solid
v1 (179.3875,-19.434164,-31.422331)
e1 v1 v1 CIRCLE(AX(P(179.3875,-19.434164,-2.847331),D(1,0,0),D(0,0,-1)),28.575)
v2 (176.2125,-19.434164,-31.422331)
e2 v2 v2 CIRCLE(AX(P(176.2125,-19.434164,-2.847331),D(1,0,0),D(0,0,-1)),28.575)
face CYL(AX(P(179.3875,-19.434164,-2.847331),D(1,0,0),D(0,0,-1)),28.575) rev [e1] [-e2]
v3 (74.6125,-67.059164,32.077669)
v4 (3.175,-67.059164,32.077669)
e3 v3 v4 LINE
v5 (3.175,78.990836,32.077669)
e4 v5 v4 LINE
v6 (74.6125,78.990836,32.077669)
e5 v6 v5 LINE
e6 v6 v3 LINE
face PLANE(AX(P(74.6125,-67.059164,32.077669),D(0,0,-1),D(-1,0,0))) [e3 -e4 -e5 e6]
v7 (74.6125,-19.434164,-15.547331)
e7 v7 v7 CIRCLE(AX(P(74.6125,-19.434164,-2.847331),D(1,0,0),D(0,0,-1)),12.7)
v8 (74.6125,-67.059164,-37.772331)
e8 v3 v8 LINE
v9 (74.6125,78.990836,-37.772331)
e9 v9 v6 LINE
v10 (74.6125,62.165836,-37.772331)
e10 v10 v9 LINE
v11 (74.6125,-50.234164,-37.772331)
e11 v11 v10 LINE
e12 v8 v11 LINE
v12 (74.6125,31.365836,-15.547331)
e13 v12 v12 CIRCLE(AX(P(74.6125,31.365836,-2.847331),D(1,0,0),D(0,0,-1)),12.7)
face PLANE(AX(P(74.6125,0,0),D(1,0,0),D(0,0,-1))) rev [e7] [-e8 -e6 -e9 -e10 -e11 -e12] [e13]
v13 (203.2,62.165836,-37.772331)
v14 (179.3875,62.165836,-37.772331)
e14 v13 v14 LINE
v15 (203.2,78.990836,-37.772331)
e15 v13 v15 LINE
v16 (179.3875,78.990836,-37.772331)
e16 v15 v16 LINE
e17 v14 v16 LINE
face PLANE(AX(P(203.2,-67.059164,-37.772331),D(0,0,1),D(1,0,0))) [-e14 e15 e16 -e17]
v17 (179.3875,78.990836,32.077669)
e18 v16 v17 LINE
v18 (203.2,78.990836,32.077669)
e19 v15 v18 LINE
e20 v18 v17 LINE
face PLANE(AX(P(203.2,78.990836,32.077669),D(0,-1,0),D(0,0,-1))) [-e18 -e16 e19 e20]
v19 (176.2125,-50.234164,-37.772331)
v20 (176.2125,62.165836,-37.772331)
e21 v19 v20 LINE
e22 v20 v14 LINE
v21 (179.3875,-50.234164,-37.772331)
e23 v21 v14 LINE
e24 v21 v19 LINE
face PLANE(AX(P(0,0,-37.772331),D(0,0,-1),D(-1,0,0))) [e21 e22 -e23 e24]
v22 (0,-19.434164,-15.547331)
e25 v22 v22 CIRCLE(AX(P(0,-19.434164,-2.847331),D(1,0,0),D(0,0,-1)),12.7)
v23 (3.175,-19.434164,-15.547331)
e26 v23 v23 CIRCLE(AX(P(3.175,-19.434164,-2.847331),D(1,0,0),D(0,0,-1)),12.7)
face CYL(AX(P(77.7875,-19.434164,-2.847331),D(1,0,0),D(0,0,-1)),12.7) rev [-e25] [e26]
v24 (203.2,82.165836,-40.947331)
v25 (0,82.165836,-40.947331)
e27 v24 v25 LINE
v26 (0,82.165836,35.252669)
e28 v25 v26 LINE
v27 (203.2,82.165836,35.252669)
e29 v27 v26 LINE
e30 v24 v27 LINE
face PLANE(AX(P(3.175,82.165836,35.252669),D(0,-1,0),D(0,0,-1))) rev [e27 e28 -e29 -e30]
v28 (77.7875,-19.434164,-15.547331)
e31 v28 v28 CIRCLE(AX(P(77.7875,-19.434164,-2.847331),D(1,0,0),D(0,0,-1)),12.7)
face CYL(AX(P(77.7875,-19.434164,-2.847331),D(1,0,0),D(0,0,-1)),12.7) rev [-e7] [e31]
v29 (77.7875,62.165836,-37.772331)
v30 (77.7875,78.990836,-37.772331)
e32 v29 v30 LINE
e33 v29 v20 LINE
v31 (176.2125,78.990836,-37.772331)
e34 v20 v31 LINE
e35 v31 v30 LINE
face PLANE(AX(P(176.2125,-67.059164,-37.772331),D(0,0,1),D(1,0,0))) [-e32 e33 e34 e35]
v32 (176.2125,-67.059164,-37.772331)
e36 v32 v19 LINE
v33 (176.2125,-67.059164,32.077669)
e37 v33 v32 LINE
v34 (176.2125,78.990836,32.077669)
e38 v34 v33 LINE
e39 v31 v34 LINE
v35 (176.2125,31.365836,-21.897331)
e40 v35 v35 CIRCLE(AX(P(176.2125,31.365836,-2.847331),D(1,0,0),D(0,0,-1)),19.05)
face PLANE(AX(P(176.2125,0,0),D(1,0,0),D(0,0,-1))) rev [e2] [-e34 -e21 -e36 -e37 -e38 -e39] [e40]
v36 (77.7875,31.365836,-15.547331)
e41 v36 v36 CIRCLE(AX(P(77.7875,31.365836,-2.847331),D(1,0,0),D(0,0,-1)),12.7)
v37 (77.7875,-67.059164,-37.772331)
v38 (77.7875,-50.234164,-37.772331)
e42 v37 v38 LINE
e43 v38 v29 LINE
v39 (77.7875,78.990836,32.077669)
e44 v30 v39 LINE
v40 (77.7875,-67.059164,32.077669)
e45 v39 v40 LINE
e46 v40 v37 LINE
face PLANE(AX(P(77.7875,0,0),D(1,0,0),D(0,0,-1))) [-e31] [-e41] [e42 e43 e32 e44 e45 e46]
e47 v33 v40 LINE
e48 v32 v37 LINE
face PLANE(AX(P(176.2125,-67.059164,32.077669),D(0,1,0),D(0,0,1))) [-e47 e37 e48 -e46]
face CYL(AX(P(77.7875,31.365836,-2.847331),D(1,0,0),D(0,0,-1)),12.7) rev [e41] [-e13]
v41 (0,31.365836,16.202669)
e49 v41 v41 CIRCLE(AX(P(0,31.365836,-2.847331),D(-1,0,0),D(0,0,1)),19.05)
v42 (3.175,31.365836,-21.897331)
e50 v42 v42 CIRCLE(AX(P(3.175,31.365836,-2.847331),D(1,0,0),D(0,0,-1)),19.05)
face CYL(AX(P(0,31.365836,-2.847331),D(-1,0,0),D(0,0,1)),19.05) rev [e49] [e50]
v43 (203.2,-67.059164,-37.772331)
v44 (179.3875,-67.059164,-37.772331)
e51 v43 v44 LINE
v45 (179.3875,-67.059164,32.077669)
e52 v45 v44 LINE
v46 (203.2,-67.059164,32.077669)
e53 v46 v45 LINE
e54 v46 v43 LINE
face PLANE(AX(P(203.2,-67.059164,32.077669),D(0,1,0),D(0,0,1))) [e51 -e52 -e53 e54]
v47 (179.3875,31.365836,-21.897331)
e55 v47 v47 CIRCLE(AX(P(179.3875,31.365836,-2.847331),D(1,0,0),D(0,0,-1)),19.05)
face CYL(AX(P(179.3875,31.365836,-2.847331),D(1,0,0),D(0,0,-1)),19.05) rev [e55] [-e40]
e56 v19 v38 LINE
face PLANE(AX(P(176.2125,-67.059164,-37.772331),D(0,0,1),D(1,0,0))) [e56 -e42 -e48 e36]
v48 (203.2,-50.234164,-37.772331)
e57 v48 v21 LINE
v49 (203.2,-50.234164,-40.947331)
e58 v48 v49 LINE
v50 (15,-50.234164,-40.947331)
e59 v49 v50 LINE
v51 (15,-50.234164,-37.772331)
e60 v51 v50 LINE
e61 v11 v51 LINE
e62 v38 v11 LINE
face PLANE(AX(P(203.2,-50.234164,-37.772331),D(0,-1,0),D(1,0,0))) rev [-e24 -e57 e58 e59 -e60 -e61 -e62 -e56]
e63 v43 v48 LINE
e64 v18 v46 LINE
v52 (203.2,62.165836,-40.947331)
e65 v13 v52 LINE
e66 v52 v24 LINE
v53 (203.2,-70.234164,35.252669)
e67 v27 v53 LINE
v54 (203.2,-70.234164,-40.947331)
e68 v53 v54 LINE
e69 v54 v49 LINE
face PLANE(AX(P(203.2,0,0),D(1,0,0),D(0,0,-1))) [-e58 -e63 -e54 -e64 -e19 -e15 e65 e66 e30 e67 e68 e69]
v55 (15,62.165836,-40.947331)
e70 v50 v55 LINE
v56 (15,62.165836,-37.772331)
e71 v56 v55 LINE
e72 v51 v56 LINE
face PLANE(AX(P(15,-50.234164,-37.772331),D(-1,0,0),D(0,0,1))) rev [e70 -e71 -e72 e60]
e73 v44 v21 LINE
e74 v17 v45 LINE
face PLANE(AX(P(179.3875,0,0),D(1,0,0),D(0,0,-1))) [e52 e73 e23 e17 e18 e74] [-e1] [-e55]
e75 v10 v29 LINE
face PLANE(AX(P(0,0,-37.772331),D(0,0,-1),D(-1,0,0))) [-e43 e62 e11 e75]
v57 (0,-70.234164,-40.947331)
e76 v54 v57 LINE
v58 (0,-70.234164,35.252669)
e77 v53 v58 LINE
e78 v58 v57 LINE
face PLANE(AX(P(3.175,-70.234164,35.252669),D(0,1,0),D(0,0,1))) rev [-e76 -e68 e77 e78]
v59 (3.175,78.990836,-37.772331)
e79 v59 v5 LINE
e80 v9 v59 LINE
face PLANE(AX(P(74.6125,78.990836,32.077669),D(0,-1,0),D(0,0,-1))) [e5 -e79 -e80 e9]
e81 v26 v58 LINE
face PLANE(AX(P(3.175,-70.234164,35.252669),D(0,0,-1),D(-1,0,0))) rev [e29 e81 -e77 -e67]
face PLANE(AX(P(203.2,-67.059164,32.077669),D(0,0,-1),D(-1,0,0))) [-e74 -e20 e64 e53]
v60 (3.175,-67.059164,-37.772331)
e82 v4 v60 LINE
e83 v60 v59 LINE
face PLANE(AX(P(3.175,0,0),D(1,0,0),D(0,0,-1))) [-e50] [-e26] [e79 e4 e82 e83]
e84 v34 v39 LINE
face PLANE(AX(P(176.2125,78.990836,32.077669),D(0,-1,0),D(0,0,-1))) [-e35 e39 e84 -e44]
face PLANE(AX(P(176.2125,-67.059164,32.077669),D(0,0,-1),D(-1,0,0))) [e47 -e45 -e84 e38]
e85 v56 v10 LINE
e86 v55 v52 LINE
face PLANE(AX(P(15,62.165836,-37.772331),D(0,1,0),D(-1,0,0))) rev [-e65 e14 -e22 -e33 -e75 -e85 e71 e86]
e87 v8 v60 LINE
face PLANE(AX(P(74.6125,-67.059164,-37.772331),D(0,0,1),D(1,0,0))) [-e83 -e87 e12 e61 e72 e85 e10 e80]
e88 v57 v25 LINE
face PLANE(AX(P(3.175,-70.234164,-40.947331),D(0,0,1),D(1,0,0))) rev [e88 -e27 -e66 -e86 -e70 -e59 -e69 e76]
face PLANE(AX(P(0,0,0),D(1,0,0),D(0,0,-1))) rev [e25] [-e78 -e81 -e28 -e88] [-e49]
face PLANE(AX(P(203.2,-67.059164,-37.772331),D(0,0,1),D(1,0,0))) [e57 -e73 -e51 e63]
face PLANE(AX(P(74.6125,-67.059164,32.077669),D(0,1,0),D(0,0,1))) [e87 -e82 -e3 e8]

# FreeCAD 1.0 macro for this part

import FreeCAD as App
import Part
import Sketcher
Q = App.Units.Quantity

doc = App.newDocument("Part")
body = doc.addObject("PartDesign::Body", "Body")

# Sketch on YZ plane
sketch1 = body.newObject("Sketcher::SketchObject", "Sketch")
sketch1.AttachmentSupport = (doc.getObject("YZ_Plane"), [""])
sketch1.MapMode = "FlatFace"
sketch1.addGeometry([
    Part.LineSegment(App.Vector(-70.234164, 35.252669, 0), App.Vector(-70.234164, -40.947331, 0)),
    Part.LineSegment(App.Vector(-70.234164, -40.947331, 0), App.Vector(82.165836, -40.947331, 0)),
    Part.LineSegment(App.Vector(82.165836, -40.947331, 0), App.Vector(82.165836, 35.252669, 0)),
    Part.LineSegment(App.Vector(82.165836, 35.252669, 0), App.Vector(-70.234164, 35.252669, 0)),
], False)
sketch1.addConstraint([
    Sketcher.Constraint("Coincident", 0, 2, 1, 1),
    Sketcher.Constraint("Coincident", 1, 2, 2, 1),
    Sketcher.Constraint("Coincident", 2, 2, 3, 1),
    Sketcher.Constraint("Coincident", 3, 2, 0, 1),
    Sketcher.Constraint("Vertical", 0),
    Sketcher.Constraint("Horizontal", 1),
    Sketcher.Constraint("Vertical", 2),
    Sketcher.Constraint("Horizontal", 3),
    Sketcher.Constraint("DistanceX", 1, 1, 1, 2, Q("6 in")),
    Sketcher.Constraint("DistanceY", 0, 2, 0, 1, Q("3 in")),
    Sketcher.Constraint("DistanceY", 0, 2, -1, 1, Q("40.947331 mm")),
    Sketcher.Constraint("DistanceX", 0, 2, -1, 1, Q("70.234164 mm")),
])
pad1 = body.newObject("PartDesign::Pad", "Pad")
pad1.Profile = sketch1
pad1.Length = Q("0.125 in")

# Sketch on YZ plane
sketch2 = body.newObject("Sketcher::SketchObject", "Sketch001")
sketch2.AttachmentSupport = (doc.getObject("YZ_Plane"), [""])
sketch2.MapMode = "FlatFace"
sketch2.AttachmentOffset = App.Placement(App.Vector(0, 0, 0.125 * 25.4), App.Rotation())
sketch2.addGeometry([
    Part.LineSegment(App.Vector(-70.234164, 35.252669, 0), App.Vector(-70.234164, -40.947331, 0)),  # 0
    Part.LineSegment(App.Vector(-70.234164, -40.947331, 0), App.Vector(82.165836, -40.947331, 0)),  # 1
    Part.LineSegment(App.Vector(82.165836, -40.947331, 0), App.Vector(82.165836, 35.252669, 0)),  # 2
    Part.LineSegment(App.Vector(82.165836, 35.252669, 0), App.Vector(-70.234164, 35.252669, 0)),  # 3
    Part.LineSegment(App.Vector(78.990836, -37.772331, 0), App.Vector(-67.059164, -37.772331, 0)),  # 4
    Part.LineSegment(App.Vector(-67.059164, -37.772331, 0), App.Vector(-67.059164, 32.077669, 0)),  # 5
    Part.LineSegment(App.Vector(-67.059164, 32.077669, 0), App.Vector(78.990836, 32.077669, 0)),  # 6
    Part.LineSegment(App.Vector(78.990836, 32.077669, 0), App.Vector(78.990836, -37.772331, 0)),  # 7
], False)
sketch2.addConstraint([
    Sketcher.Constraint("Coincident", 0, 2, 1, 1),
    Sketcher.Constraint("Coincident", 1, 2, 2, 1),
    Sketcher.Constraint("Coincident", 2, 2, 3, 1),
    Sketcher.Constraint("Coincident", 3, 2, 0, 1),
    Sketcher.Constraint("Coincident", 4, 2, 5, 1),
    Sketcher.Constraint("Coincident", 5, 2, 6, 1),
    Sketcher.Constraint("Coincident", 6, 2, 7, 1),
    Sketcher.Constraint("Coincident", 7, 2, 4, 1),
    Sketcher.Constraint("Vertical", 0),
    Sketcher.Constraint("Horizontal", 1),
    Sketcher.Constraint("Vertical", 2),
    Sketcher.Constraint("Horizontal", 3),
    Sketcher.Constraint("Horizontal", 4),
    Sketcher.Constraint("Vertical", 5),
    Sketcher.Constraint("Horizontal", 6),
    Sketcher.Constraint("Vertical", 7),
    Sketcher.Constraint("DistanceX", 1, 1, 1, 2, Q("6 in")),
    Sketcher.Constraint("DistanceY", 0, 2, 0, 1, Q("3 in")),
    Sketcher.Constraint("DistanceX", 4, 2, 4, 1, Q("5.75 in")),
    Sketcher.Constraint("DistanceY", 5, 1, 5, 2, Q("2.75 in")),
    Sketcher.Constraint("DistanceX", 0, 2, 4, 2, Q("0.125 in")),
    Sketcher.Constraint("DistanceY", 0, 2, 4, 2, Q("0.125 in")),
    Sketcher.Constraint("DistanceY", 0, 2, -1, 1, Q("40.947331 mm")),
    Sketcher.Constraint("DistanceX", 0, 2, -1, 1, Q("70.234164 mm")),
])
pad2 = body.newObject("PartDesign::Pad", "Pad001")
pad2.Profile = sketch2
pad2.Length = Q("2.8125 in")

# Sketch on YZ plane
sketch3 = body.newObject("Sketcher::SketchObject", "Sketch002")
sketch3.AttachmentSupport = (doc.getObject("YZ_Plane"), [""])
sketch3.MapMode = "FlatFace"
sketch3.AttachmentOffset = App.Placement(App.Vector(0, 0, 2.9375 * 25.4), App.Rotation())
sketch3.addGeometry([
    Part.LineSegment(App.Vector(-70.234164, 35.252669, 0), App.Vector(-70.234164, -40.947331, 0)),
    Part.LineSegment(App.Vector(-70.234164, -40.947331, 0), App.Vector(82.165836, -40.947331, 0)),
    Part.LineSegment(App.Vector(82.165836, -40.947331, 0), App.Vector(82.165836, 35.252669, 0)),
    Part.LineSegment(App.Vector(82.165836, 35.252669, 0), App.Vector(-70.234164, 35.252669, 0)),
], False)
sketch3.addConstraint([
    Sketcher.Constraint("Coincident", 0, 2, 1, 1),
    Sketcher.Constraint("Coincident", 1, 2, 2, 1),
    Sketcher.Constraint("Coincident", 2, 2, 3, 1),
    Sketcher.Constraint("Coincident", 3, 2, 0, 1),
    Sketcher.Constraint("Vertical", 0),
    Sketcher.Constraint("Horizontal", 1),
    Sketcher.Constraint("Vertical", 2),
    Sketcher.Constraint("Horizontal", 3),
    Sketcher.Constraint("DistanceX", 1, 1, 1, 2, Q("6 in")),
    Sketcher.Constraint("DistanceY", 0, 2, 0, 1, Q("3 in")),
    Sketcher.Constraint("DistanceY", 0, 2, -1, 1, Q("40.947331 mm")),
    Sketcher.Constraint("DistanceX", 0, 2, -1, 1, Q("70.234164 mm")),
])
pad3 = body.newObject("PartDesign::Pad", "Pad002")
pad3.Profile = sketch3
pad3.Length = Q("0.125 in")

# Sketch on YZ plane
sketch4 = body.newObject("Sketcher::SketchObject", "Sketch003")
sketch4.AttachmentSupport = (doc.getObject("YZ_Plane"), [""])
sketch4.MapMode = "FlatFace"
sketch4.AttachmentOffset = App.Placement(App.Vector(0, 0, 3.0625 * 25.4), App.Rotation())
sketch4.addGeometry([
    Part.LineSegment(App.Vector(-70.234164, 35.252669, 0), App.Vector(-70.234164, -40.947331, 0)),  # 0
    Part.LineSegment(App.Vector(-70.234164, -40.947331, 0), App.Vector(82.165836, -40.947331, 0)),  # 1
    Part.LineSegment(App.Vector(82.165836, -40.947331, 0), App.Vector(82.165836, 35.252669, 0)),  # 2
    Part.LineSegment(App.Vector(82.165836, 35.252669, 0), App.Vector(-70.234164, 35.252669, 0)),  # 3
    Part.LineSegment(App.Vector(78.990836, -37.772331, 0), App.Vector(-67.059164, -37.772331, 0)),  # 4
    Part.LineSegment(App.Vector(-67.059164, -37.772331, 0), App.Vector(-67.059164, 32.077669, 0)),  # 5
    Part.LineSegment(App.Vector(-67.059164, 32.077669, 0), App.Vector(78.990836, 32.077669, 0)),  # 6
    Part.LineSegment(App.Vector(78.990836, 32.077669, 0), App.Vector(78.990836, -37.772331, 0)),  # 7
], False)
sketch4.addConstraint([
    Sketcher.Constraint("Coincident", 0, 2, 1, 1),
    Sketcher.Constraint("Coincident", 1, 2, 2, 1),
    Sketcher.Constraint("Coincident", 2, 2, 3, 1),
    Sketcher.Constraint("Coincident", 3, 2, 0, 1),
    Sketcher.Constraint("Coincident", 4, 2, 5, 1),
    Sketcher.Constraint("Coincident", 5, 2, 6, 1),
    Sketcher.Constraint("Coincident", 6, 2, 7, 1),
    Sketcher.Constraint("Coincident", 7, 2, 4, 1),
    Sketcher.Constraint("Vertical", 0),
    Sketcher.Constraint("Horizontal", 1),
    Sketcher.Constraint("Vertical", 2),
    Sketcher.Constraint("Horizontal", 3),
    Sketcher.Constraint("Horizontal", 4),
    Sketcher.Constraint("Vertical", 5),
    Sketcher.Constraint("Horizontal", 6),
    Sketcher.Constraint("Vertical", 7),
    Sketcher.Constraint("DistanceX", 1, 1, 1, 2, Q("6 in")),
    Sketcher.Constraint("DistanceY", 0, 2, 0, 1, Q("3 in")),
    Sketcher.Constraint("DistanceX", 4, 2, 4, 1, Q("5.75 in")),
    Sketcher.Constraint("DistanceY", 5, 1, 5, 2, Q("2.75 in")),
    Sketcher.Constraint("DistanceX", 0, 2, 4, 2, Q("0.125 in")),
    Sketcher.Constraint("DistanceY", 0, 2, 4, 2, Q("0.125 in")),
    Sketcher.Constraint("DistanceY", 0, 2, -1, 1, Q("40.947331 mm")),
    Sketcher.Constraint("DistanceX", 0, 2, -1, 1, Q("70.234164 mm")),
])
pad4 = body.newObject("PartDesign::Pad", "Pad003")
pad4.Profile = sketch4
pad4.Length = Q("3.875 in")

# Sketch on YZ plane
sketch5 = body.newObject("Sketcher::SketchObject", "Sketch004")
sketch5.AttachmentSupport = (doc.getObject("YZ_Plane"), [""])
sketch5.MapMode = "FlatFace"
sketch5.AttachmentOffset = App.Placement(App.Vector(0, 0, 3.0625 * 25.4), App.Rotation())
sketch5.addGeometry([
    Part.Circle(App.Vector(-19.434164, -2.847331, 0), App.Vector(0, 0, 1), 12.7),
    Part.Circle(App.Vector(31.365836, -2.847331, 0), App.Vector(0, 0, 1), 12.7),
], False)
sketch5.addConstraint([
    Sketcher.Constraint("Equal", 0, 1),
    Sketcher.Constraint("Horizontal", 0, 3, 1, 3),
    Sketcher.Constraint("Diameter", 0, Q("1 in")),
    Sketcher.Constraint("DistanceX", 0, 3, 1, 3, Q("2 in")),
    Sketcher.Constraint("DistanceY", 0, 3, -1, 1, Q("2.847331 mm")),
    Sketcher.Constraint("DistanceX", 0, 3, -1, 1, Q("19.434164 mm")),
])
doc.recompute()
hole = body.newObject("PartDesign::Hole", "Hole")
hole.Profile = sketch5
hole.ThreadType = "None"
hole.Diameter = Q("1 in")
hole.DepthType = "ThroughAll"

# Sketch on YZ plane
sketch6 = body.newObject("Sketcher::SketchObject", "Sketch005")
sketch6.AttachmentSupport = (doc.getObject("YZ_Plane"), [""])
sketch6.MapMode = "FlatFace"
sketch6.addGeometry(Part.Circle(App.Vector(31.365836, -2.847331, 0), App.Vector(0, 0, 1), 19.05), False)
sketch6.addConstraint([
    Sketcher.Constraint("Diameter", 0, Q("1.5 in")),
    Sketcher.Constraint("DistanceY", 0, 3, -1, 1, Q("2.847331 mm")),
    Sketcher.Constraint("DistanceX", -1, 1, 0, 3, Q("31.365836 mm")),
])
doc.recompute()
hole2 = body.newObject("PartDesign::Hole", "Hole001")
hole2.Profile = sketch6
hole2.ThreadType = "None"
hole2.Diameter = Q("1.5 in")
hole2.DepthType = "Dimension"
hole2.Depth = Q("0.25 in")
hole2.DrillPoint = "Flat"
hole2.Reversed = True

# Sketch on YZ plane
sketch7 = body.newObject("Sketcher::SketchObject", "Sketch006")
sketch7.AttachmentSupport = (doc.getObject("YZ_Plane"), [""])
sketch7.MapMode = "FlatFace"
sketch7.AttachmentOffset = App.Placement(App.Vector(0, 0, 6.9375 * 25.4), App.Rotation())
sketch7.addGeometry([
    Part.LineSegment(App.Vector(-70.234164, 35.252669, 0), App.Vector(-70.234164, -40.947331, 0)),
    Part.LineSegment(App.Vector(-70.234164, -40.947331, 0), App.Vector(82.165836, -40.947331, 0)),
    Part.LineSegment(App.Vector(82.165836, -40.947331, 0), App.Vector(82.165836, 35.252669, 0)),
    Part.LineSegment(App.Vector(82.165836, 35.252669, 0), App.Vector(-70.234164, 35.252669, 0)),
], False)
sketch7.addConstraint([
    Sketcher.Constraint("Coincident", 0, 2, 1, 1),
    Sketcher.Constraint("Coincident", 1, 2, 2, 1),
    Sketcher.Constraint("Coincident", 2, 2, 3, 1),
    Sketcher.Constraint("Coincident", 3, 2, 0, 1),
    Sketcher.Constraint("Vertical", 0),
    Sketcher.Constraint("Horizontal", 1),
    Sketcher.Constraint("Vertical", 2),
    Sketcher.Constraint("Horizontal", 3),
    Sketcher.Constraint("DistanceX", 1, 1, 1, 2, Q("6 in")),
    Sketcher.Constraint("DistanceY", 0, 2, 0, 1, Q("3 in")),
    Sketcher.Constraint("DistanceY", 0, 2, -1, 1, Q("40.947331 mm")),
    Sketcher.Constraint("DistanceX", 0, 2, -1, 1, Q("70.234164 mm")),
])
pad5 = body.newObject("PartDesign::Pad", "Pad004")
pad5.Profile = sketch7
pad5.Length = Q("0.125 in")

# Sketch on YZ plane
sketch8 = body.newObject("Sketcher::SketchObject", "Sketch007")
sketch8.AttachmentSupport = (doc.getObject("YZ_Plane"), [""])
sketch8.MapMode = "FlatFace"
sketch8.AttachmentOffset = App.Placement(App.Vector(0, 0, 7.0625 * 25.4), App.Rotation())
sketch8.addGeometry(Part.Circle(App.Vector(31.365836, -2.847331, 0), App.Vector(0, 0, 1), 19.05), False)
sketch8.addConstraint([
    Sketcher.Constraint("Diameter", 0, Q("1.5 in")),
    Sketcher.Constraint("DistanceY", 0, 3, -1, 1, Q("2.847331 mm")),
    Sketcher.Constraint("DistanceX", -1, 1, 0, 3, Q("31.365836 mm")),
])
doc.recompute()
hole3 = body.newObject("PartDesign::Hole", "Hole002")
hole3.Profile = sketch8
hole3.ThreadType = "None"
hole3.Diameter = Q("1.5 in")
hole3.DepthType = "Dimension"
hole3.Depth = Q("0.25 in")
hole3.DrillPoint = "Flat"

# Sketch on YZ plane
sketch9 = body.newObject("Sketcher::SketchObject", "Sketch008")
sketch9.AttachmentSupport = (doc.getObject("YZ_Plane"), [""])
sketch9.MapMode = "FlatFace"
sketch9.AttachmentOffset = App.Placement(App.Vector(0, 0, 7.0625 * 25.4), App.Rotation())
sketch9.addGeometry(Part.Circle(App.Vector(-19.434164, -2.847331, 0), App.Vector(0, 0, 1), 28.575), False)
sketch9.addConstraint([
    Sketcher.Constraint("Diameter", 0, Q("2.25 in")),
    Sketcher.Constraint("DistanceY", 0, 3, -1, 1, Q("2.847331 mm")),
    Sketcher.Constraint("DistanceX", 0, 3, -1, 1, Q("19.434164 mm")),
])
doc.recompute()
hole4 = body.newObject("PartDesign::Hole", "Hole003")
hole4.Profile = sketch9
hole4.ThreadType = "None"
hole4.Diameter = Q("2.25 in")
hole4.DepthType = "Dimension"
hole4.Depth = Q("0.25 in")
hole4.DrillPoint = "Flat"

# Sketch on YZ plane
sketch10 = body.newObject("Sketcher::SketchObject", "Sketch009")
sketch10.AttachmentSupport = (doc.getObject("YZ_Plane"), [""])
sketch10.MapMode = "FlatFace"
sketch10.AttachmentOffset = App.Placement(App.Vector(0, 0, 7.0625 * 25.4), App.Rotation())
sketch10.addGeometry([
    Part.LineSegment(App.Vector(-70.234164, 35.252669, 0), App.Vector(-70.234164, -40.947331, 0)),  # 0
    Part.LineSegment(App.Vector(-70.234164, -40.947331, 0), App.Vector(82.165836, -40.947331, 0)),  # 1
    Part.LineSegment(App.Vector(82.165836, -40.947331, 0), App.Vector(82.165836, 35.252669, 0)),  # 2
    Part.LineSegment(App.Vector(82.165836, 35.252669, 0), App.Vector(-70.234164, 35.252669, 0)),  # 3
    Part.LineSegment(App.Vector(78.990836, -37.772331, 0), App.Vector(-67.059164, -37.772331, 0)),  # 4
    Part.LineSegment(App.Vector(-67.059164, -37.772331, 0), App.Vector(-67.059164, 32.077669, 0)),  # 5
    Part.LineSegment(App.Vector(-67.059164, 32.077669, 0), App.Vector(78.990836, 32.077669, 0)),  # 6
    Part.LineSegment(App.Vector(78.990836, 32.077669, 0), App.Vector(78.990836, -37.772331, 0)),  # 7
], False)
sketch10.addConstraint([
    Sketcher.Constraint("Coincident", 0, 2, 1, 1),
    Sketcher.Constraint("Coincident", 1, 2, 2, 1),
    Sketcher.Constraint("Coincident", 2, 2, 3, 1),
    Sketcher.Constraint("Coincident", 3, 2, 0, 1),
    Sketcher.Constraint("Coincident", 4, 2, 5, 1),
    Sketcher.Constraint("Coincident", 5, 2, 6, 1),
    Sketcher.Constraint("Coincident", 6, 2, 7, 1),
    Sketcher.Constraint("Coincident", 7, 2, 4, 1),
    Sketcher.Constraint("Vertical", 0),
    Sketcher.Constraint("Horizontal", 1),
    Sketcher.Constraint("Vertical", 2),
    Sketcher.Constraint("Horizontal", 3),
    Sketcher.Constraint("Horizontal", 4),
    Sketcher.Constraint("Vertical", 5),
    Sketcher.Constraint("Horizontal", 6),
    Sketcher.Constraint("Vertical", 7),
    Sketcher.Constraint("DistanceX", 1, 1, 1, 2, Q("6 in")),
    Sketcher.Constraint("DistanceY", 0, 2, 0, 1, Q("3 in")),
    Sketcher.Constraint("DistanceX", 4, 2, 4, 1, Q("5.75 in")),
    Sketcher.Constraint("DistanceY", 5, 1, 5, 2, Q("2.75 in")),
    Sketcher.Constraint("DistanceX", 0, 2, 4, 2, Q("0.125 in")),
    Sketcher.Constraint("DistanceY", 0, 2, 4, 2, Q("0.125 in")),
    Sketcher.Constraint("DistanceY", 0, 2, -1, 1, Q("40.947331 mm")),
    Sketcher.Constraint("DistanceX", 0, 2, -1, 1, Q("70.234164 mm")),
])
pad6 = body.newObject("PartDesign::Pad", "Pad005")
pad6.Profile = sketch10
pad6.Length = Q("0.9375 in")

# Sketch on XY plane
sketch11 = body.newObject("Sketcher::SketchObject", "Sketch010")
sketch11.AttachmentSupport = (doc.getObject("XY_Plane"), [""])
sketch11.MapMode = "FlatFace"
sketch11.AttachmentOffset = App.Placement(App.Vector(0, 0, -40.947331), App.Rotation())
sketch11.addGeometry([
    Part.LineSegment(App.Vector(15, -50.234164, 0), App.Vector(15, 62.165836, 0)),
    Part.LineSegment(App.Vector(15, 62.165836, 0), App.Vector(203.2, 62.165836, 0)),
    Part.LineSegment(App.Vector(203.2, 62.165836, 0), App.Vector(203.2, -50.234164, 0)),
    Part.LineSegment(App.Vector(203.2, -50.234164, 0), App.Vector(15, -50.234164, 0)),
], False)
sketch11.addConstraint([
    Sketcher.Constraint("Coincident", 0, 2, 1, 1),
    Sketcher.Constraint("Coincident", 1, 2, 2, 1),
    Sketcher.Constraint("Coincident", 2, 2, 3, 1),
    Sketcher.Constraint("Coincident", 3, 2, 0, 1),
    Sketcher.Constraint("Vertical", 0),
    Sketcher.Constraint("Horizontal", 1),
    Sketcher.Constraint("Vertical", 2),
    Sketcher.Constraint("Horizontal", 3),
    Sketcher.Constraint("DistanceX", -1, 1, 1, 2, Q("8 in")),
    Sketcher.Constraint("DistanceX", 1, 1, 1, 2, Q("188.2 mm")),
    Sketcher.Constraint("DistanceY", 0, 1, 0, 2, Q("112.4 mm")),
    Sketcher.Constraint("DistanceY", -1, 1, 0, 2, Q("62.165836 mm")),
])
pocket1 = body.newObject("PartDesign::Pocket", "Pocket")
pocket1.Profile = sketch11
pocket1.Length = Q("0.125 in")
pocket1.Reversed = True

doc.recompute()
